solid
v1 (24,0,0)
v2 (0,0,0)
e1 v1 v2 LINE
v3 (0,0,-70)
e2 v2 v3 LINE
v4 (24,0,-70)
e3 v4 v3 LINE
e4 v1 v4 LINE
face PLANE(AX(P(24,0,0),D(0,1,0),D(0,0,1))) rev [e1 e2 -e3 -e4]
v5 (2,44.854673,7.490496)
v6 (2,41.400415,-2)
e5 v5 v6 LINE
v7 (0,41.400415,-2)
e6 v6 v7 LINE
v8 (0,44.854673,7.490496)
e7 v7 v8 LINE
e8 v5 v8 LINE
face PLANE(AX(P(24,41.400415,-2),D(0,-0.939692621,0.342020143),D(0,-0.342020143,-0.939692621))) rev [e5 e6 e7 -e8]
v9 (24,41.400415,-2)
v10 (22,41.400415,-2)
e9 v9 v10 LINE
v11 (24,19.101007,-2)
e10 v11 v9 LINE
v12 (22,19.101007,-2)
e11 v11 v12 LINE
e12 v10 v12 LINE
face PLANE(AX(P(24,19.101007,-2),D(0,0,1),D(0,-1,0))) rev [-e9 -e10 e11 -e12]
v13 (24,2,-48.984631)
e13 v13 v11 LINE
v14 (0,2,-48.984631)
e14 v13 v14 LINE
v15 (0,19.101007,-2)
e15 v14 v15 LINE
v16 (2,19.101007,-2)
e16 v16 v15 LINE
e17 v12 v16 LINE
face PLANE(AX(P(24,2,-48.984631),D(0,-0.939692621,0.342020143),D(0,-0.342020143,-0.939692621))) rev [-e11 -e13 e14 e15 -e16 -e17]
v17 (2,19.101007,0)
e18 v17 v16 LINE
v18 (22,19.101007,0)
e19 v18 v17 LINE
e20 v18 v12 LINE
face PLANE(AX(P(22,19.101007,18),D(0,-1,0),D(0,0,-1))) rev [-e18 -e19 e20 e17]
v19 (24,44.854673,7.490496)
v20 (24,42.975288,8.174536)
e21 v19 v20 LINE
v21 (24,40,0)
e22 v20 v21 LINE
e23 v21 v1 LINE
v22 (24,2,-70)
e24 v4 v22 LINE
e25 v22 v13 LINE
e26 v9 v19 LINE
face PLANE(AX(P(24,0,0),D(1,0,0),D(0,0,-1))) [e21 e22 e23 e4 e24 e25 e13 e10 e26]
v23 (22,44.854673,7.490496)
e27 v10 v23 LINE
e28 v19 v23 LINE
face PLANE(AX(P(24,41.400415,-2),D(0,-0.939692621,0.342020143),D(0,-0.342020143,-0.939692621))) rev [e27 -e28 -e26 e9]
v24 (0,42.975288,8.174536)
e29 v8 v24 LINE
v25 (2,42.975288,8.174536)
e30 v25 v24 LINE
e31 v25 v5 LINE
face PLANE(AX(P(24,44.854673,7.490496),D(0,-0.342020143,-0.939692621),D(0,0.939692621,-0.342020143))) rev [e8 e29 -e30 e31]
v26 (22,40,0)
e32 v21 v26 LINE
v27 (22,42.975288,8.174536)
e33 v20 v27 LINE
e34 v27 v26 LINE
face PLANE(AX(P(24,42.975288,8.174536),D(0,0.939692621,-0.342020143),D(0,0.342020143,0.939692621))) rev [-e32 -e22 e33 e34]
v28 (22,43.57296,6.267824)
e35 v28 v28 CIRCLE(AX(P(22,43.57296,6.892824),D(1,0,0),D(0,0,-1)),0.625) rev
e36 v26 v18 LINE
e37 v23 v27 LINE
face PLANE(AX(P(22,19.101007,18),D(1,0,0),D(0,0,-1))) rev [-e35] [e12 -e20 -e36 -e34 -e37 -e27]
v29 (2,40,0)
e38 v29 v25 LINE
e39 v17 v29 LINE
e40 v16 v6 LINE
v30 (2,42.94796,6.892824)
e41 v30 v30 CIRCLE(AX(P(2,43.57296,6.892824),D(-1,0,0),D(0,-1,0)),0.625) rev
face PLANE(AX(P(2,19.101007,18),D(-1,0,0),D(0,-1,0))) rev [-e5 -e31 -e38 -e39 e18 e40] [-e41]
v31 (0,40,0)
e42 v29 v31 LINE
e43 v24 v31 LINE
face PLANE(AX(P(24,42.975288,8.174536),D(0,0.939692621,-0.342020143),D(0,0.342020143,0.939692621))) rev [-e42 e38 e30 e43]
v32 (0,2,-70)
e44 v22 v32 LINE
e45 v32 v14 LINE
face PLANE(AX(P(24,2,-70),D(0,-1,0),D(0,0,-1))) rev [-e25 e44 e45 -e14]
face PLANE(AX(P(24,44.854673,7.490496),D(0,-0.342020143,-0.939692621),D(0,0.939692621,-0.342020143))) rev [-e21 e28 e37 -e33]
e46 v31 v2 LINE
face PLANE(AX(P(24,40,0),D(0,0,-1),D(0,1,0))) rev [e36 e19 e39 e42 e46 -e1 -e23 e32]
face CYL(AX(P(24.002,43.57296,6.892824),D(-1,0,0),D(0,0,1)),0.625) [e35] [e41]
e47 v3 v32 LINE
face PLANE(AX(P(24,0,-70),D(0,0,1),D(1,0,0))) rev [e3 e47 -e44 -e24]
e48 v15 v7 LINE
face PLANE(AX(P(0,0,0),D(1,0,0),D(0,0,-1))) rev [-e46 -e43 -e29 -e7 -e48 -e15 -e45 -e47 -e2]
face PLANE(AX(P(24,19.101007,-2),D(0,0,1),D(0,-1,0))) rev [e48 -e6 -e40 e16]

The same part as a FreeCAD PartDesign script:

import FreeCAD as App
import Part
import Sketcher
from FreeCAD import Vector
Q = App.Units.Quantity


def add_polygon(sketch, points):
    """Adds a closed chain of lines whose ends are joined by coincident constraints."""
    first, n = sketch.GeometryCount, len(points)
    for a, b in zip(points, points[1:] + points[:1]):
        sketch.addGeometry(Part.LineSegment(App.Vector(*a, 0), App.Vector(*b, 0)), False)
    for i in range(n):
        sketch.addConstraint(Sketcher.Constraint("Coincident", first + i, 2, first + (i + 1) % n, 1))

doc = App.newDocument("Part")
body = doc.addObject("PartDesign::Body", "Body")

sketch1 = body.newObject("Sketcher::SketchObject", "Sketch")
sketch1.AttachmentSupport = (doc.getObject("YZ_Plane"), [""])
sketch1.MapMode = "FlatFace"
add_polygon(sketch1, [(0, 0), (0, -70), (2, -70), (2, -48.984631), (19.101007, -2), (41.400415, -2), (44.854673, 7.490496), (42.975288, 8.174536), (40, 0)])
sketch1.addConstraint([
    Sketcher.Constraint("Vertical", 0),
    Sketcher.Constraint("Horizontal", 1),
    Sketcher.Constraint("Vertical", 2),
    Sketcher.Constraint("Horizontal", 4),
    Sketcher.Constraint("Horizontal", 8),
    Sketcher.Constraint("Coincident", 8, 2, -1, 1),
    Sketcher.Constraint("Parallel", 3, 5),
    Sketcher.Constraint("Perpendicular", 5, 6),
    Sketcher.Constraint("Perpendicular", 6, 7),
    Sketcher.Constraint("DistanceX", 1, 1, 1, 2, Q("2 mm")),
    Sketcher.Constraint("DistanceX", 8, 2, 8, 1, Q("40 mm")),
    Sketcher.Constraint("DistanceY", 0, 2, 0, 1, Q("70 mm")),
    Sketcher.Constraint("Angle", 3, Q("70 deg")),
    Sketcher.Constraint("Distance", 3, Q("50 mm")),
    Sketcher.Constraint("Distance", 6, Q("2 mm")),
    Sketcher.Constraint("DistanceY", 3, 2, -1, 1, Q("2 mm")),
    Sketcher.Constraint("Distance", 7, Q("8.69916 mm")),
])
pad1 = body.newObject("PartDesign::Pad", "Pad")
pad1.Profile = sketch1
pad1.Length = 24

sketch2 = body.newObject("Sketcher::SketchObject", "Sketch001")
sketch2.AttachmentSupport = (doc.getObject("XY_Plane"), [""])
sketch2.MapMode = "FlatFace"
sketch2.AttachmentOffset = App.Placement(Vector(0, 0, -2), App.Rotation())
add_polygon(sketch2, [(22, 49.297057), (22, 19.101007), (2, 19.101007), (2, 49.297057)])
sketch2.addConstraint([
    Sketcher.Constraint("Vertical", 0),
    Sketcher.Constraint("Horizontal", 1),
    Sketcher.Constraint("Vertical", 2),
    Sketcher.Constraint("Horizontal", 3),
    Sketcher.Constraint("DistanceX", 1, 2, 1, 1, Q("20 mm")),
    Sketcher.Constraint("DistanceX", -1, 1, 0, 2, Q("22 mm")),
    Sketcher.Constraint("DistanceY", 0, 2, 0, 1, Q("30.19605 mm")),
    Sketcher.Constraint("DistanceY", -1, 1, 0, 2, Q("19.101007 mm")),
])
pocket1 = body.newObject("PartDesign::Pocket", "Pocket")
pocket1.Profile = sketch2
pocket1.Length = 20
pocket1.Reversed = True

sketch3 = body.newObject("Sketcher::SketchObject", "Sketch002")
sketch3.AttachmentSupport = (doc.getObject("YZ_Plane"), [""])
sketch3.MapMode = "FlatFace"
sketch3.AttachmentOffset = App.Placement(Vector(0, 0, 2), App.Rotation())
sketch3.addGeometry(Part.Circle(Vector(43.57296, 6.892824, 0), Vector(0, 0, 1), 0.625), False)
sketch3.addConstraint([
    Sketcher.Constraint("Diameter", 0, Q("1.25 mm")),
    Sketcher.Constraint("DistanceX", -1, 1, 0, 3, Q("43.57296 mm")),
    Sketcher.Constraint("DistanceY", -1, 1, 0, 3, Q("6.892824 mm")),
])
pad2 = body.newObject("PartDesign::Pad", "Pad001")
pad2.Profile = sketch3
pad2.Length = 20

doc.recompute()
